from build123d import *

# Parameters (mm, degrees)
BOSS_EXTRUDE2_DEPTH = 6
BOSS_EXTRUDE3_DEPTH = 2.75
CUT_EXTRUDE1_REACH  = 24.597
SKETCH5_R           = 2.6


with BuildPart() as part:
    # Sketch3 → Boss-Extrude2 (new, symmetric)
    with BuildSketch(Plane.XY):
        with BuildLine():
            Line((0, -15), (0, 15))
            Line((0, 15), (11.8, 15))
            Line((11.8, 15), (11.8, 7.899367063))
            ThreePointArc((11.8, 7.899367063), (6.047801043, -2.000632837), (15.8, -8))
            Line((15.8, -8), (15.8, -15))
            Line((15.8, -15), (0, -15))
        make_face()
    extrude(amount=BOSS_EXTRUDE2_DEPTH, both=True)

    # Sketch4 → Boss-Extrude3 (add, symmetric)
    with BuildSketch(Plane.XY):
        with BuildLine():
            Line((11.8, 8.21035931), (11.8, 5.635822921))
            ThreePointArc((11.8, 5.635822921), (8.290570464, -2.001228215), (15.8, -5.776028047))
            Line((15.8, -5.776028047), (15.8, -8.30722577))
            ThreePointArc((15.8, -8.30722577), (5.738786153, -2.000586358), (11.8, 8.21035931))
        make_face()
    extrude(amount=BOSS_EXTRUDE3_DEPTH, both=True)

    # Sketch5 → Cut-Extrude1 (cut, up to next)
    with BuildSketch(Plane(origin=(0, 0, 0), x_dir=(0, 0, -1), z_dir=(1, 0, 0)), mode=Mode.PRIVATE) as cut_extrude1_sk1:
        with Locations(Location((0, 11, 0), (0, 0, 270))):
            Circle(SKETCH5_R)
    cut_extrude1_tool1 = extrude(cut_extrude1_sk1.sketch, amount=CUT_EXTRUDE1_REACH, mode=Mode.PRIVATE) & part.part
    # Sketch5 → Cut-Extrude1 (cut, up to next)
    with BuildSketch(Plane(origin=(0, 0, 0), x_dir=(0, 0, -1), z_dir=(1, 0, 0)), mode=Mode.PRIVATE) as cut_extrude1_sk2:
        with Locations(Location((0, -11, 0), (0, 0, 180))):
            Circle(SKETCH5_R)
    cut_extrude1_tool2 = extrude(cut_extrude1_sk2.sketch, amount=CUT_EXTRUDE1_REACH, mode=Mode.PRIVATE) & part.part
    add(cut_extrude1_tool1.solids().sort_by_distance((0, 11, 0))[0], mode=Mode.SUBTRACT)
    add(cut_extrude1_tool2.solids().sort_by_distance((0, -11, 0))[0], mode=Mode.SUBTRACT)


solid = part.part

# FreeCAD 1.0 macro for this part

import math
import FreeCAD as App
import Part
import Sketcher

V = App.Vector
Q = App.Units.Quantity

doc = App.newDocument("Part")
body = doc.addObject("PartDesign::Body", "Body")

sketch1 = body.newObject("Sketcher::SketchObject", "Sketch")
sketch1.AttachmentSupport = (doc.getObject("XY_Plane"), [""])
sketch1.MapMode = "FlatFace"
sketch1.addGeometry([
    Part.LineSegment(V(0, 15, 0), V(0, -15, 0)),
    Part.LineSegment(V(0, -15, 0), V(16, -15, 0)),
    Part.LineSegment(V(16, -15, 0), V(16, -8, 0)),
    Part.ArcOfCircle(Part.Circle(V(14, 0, 0), V(0, 0, 1), 8), math.radians(106), math.radians(283)),
    Part.LineSegment(V(12, 8, 0), V(12, 15, 0)),
    Part.LineSegment(V(12, 15, 0), V(0, 15, 0)),
], False)
sketch1.addConstraint([
    Sketcher.Constraint("Coincident", 0, 2, 1, 1),
    Sketcher.Constraint("Coincident", 1, 2, 2, 1),
    Sketcher.Constraint("Coincident", 2, 2, 3, 2),
    Sketcher.Constraint("Coincident", 3, 1, 4, 1),
    Sketcher.Constraint("Coincident", 4, 2, 5, 1),
    Sketcher.Constraint("Coincident", 5, 2, 0, 1),
    Sketcher.Constraint("Vertical", 0),
    Sketcher.Constraint("Horizontal", 1),
    Sketcher.Constraint("Vertical", 2),
    Sketcher.Constraint("Vertical", 4),
    Sketcher.Constraint("Horizontal", 5),
    Sketcher.Constraint("Symmetric", 0, 2, 5, 2, -1, 1),
    Sketcher.Constraint("PointOnObject", 3, 3, -1),
    Sketcher.Constraint("Radius", 3, Q("8.2 mm")),
    Sketcher.Constraint("DistanceY", 0, 2, 0, 1, Q("30 mm")),
    Sketcher.Constraint("DistanceY", 2, 1, 2, 2, Q("7 mm")),
    Sketcher.Constraint("DistanceX", 1, 1, 1, 2, Q("15.8 mm")),
    Sketcher.Constraint("DistanceX", 5, 2, 5, 1, Q("11.8 mm")),
])
pad1 = body.newObject("PartDesign::Pad", "Pad")
pad1.Profile = sketch1
pad1.Length = 12
pad1.Midplane = True

sketch2 = body.newObject("Sketcher::SketchObject", "Sketch001")
sketch2.AttachmentSupport = (doc.getObject("XY_Plane"), [""])
sketch2.MapMode = "FlatFace"
sketch2.addGeometry([
    Part.LineSegment(V(11.8, 5.6, 0), V(11.8, 8.2, 0)),
    Part.ArcOfCircle(Part.Circle(V(14, 0, 0), V(0, 0, 1), 8.5), math.radians(105), math.radians(282)),
    Part.LineSegment(V(15.8, -8.3, 0), V(15.8, -5.8, 0)),
    Part.ArcOfCircle(Part.Circle(V(14, 0, 0), V(0, 0, 1), 6), math.radians(111), math.radians(287)),
], False)
sketch2.addConstraint([
    Sketcher.Constraint("Coincident", 0, 2, 1, 1),
    Sketcher.Constraint("Coincident", 1, 2, 2, 1),
    Sketcher.Constraint("Coincident", 2, 2, 3, 2),
    Sketcher.Constraint("Coincident", 3, 1, 0, 1),
    Sketcher.Constraint("Vertical", 0),
    Sketcher.Constraint("Vertical", 2),
    Sketcher.Constraint("Coincident", 3, 3, 1, 3),
    Sketcher.Constraint("PointOnObject", 1, 3, -1),
    Sketcher.Constraint("Radius", 1, Q("8.5 mm")),
    Sketcher.Constraint("Radius", 3, Q("6.05 mm")),
    Sketcher.Constraint("DistanceX", -1, 1, 1, 3, Q("14 mm")),
    Sketcher.Constraint("DistanceX", 0, 2, 1, 2, Q("4 mm")),
    Sketcher.Constraint("DistanceX", -1, 1, 0, 2, Q("11.8 mm")),
])
pad2 = body.newObject("PartDesign::Pad", "Pad001")
pad2.Profile = sketch2
pad2.Length = 5.5
pad2.Midplane = True

sketch3 = body.newObject("Sketcher::SketchObject", "Sketch002")
sketch3.AttachmentSupport = (doc.getObject("YZ_Plane"), [""])
sketch3.MapMode = "FlatFace"
sketch3.addGeometry(Part.Circle(V(11, 0, 0), V(0, 0, 1), 2.6), False)
sketch3.addConstraint([
    Sketcher.Constraint("PointOnObject", 0, 3, -1),
    Sketcher.Constraint("Diameter", 0, Q("5.2 mm")),
    Sketcher.Constraint("DistanceX", -1, 1, 0, 3, Q("11 mm")),
])
pocket1 = body.newObject("PartDesign::Pocket", "Pocket")
pocket1.Profile = sketch3
pocket1.Type = "UpToFirst"
pocket1.Reversed = True

sketch4 = body.newObject("Sketcher::SketchObject", "Sketch003")
sketch4.AttachmentSupport = (doc.getObject("YZ_Plane"), [""])
sketch4.MapMode = "FlatFace"
sketch4.addGeometry(Part.Circle(V(-11, 0, 0), V(0, 0, 1), 2.6), False)
sketch4.addConstraint([
    Sketcher.Constraint("PointOnObject", 0, 3, -1),
    Sketcher.Constraint("Diameter", 0, Q("5.2 mm")),
    Sketcher.Constraint("DistanceX", 0, 3, -1, 1, Q("11 mm")),
])
pocket2 = body.newObject("PartDesign::Pocket", "Pocket001")
pocket2.Profile = sketch4
pocket2.Type = "UpToFirst"
pocket2.Reversed = True

doc.recompute()
